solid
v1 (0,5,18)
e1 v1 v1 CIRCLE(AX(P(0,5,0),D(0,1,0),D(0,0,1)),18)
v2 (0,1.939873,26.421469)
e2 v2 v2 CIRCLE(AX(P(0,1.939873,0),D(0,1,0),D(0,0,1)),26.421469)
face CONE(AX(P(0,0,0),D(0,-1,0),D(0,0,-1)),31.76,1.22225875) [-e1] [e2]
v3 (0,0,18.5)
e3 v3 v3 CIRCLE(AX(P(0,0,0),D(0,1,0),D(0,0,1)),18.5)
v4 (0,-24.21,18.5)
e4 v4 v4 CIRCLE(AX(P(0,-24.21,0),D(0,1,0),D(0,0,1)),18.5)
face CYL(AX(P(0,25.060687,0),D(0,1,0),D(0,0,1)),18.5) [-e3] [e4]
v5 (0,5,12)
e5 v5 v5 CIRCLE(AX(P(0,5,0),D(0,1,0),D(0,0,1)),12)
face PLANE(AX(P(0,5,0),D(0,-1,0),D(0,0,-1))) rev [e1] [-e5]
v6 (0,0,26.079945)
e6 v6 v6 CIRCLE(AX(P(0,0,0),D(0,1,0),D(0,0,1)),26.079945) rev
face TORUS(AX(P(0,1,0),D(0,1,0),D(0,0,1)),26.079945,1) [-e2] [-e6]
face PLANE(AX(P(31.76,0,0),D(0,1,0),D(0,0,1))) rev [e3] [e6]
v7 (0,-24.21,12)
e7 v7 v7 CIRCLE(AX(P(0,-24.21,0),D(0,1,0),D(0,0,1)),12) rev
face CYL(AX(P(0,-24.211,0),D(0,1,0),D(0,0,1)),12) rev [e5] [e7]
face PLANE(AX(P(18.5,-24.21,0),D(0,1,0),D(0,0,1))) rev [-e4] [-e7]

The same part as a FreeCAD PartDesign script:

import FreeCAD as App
import Part
import Sketcher
from FreeCAD import Vector
Q = App.Units.Quantity


def edges_at(feature, points):
    """Names of the edges that pass closest to the given points."""
    edges = feature.Shape.Edges
    near = lambda p: min(range(len(edges)), key=lambda i: edges[i].distToShape(Part.Vertex(*p))[0])
    return sorted({f"Edge{near(p) + 1}" for p in points})


def add_polygon(sketch, points):
    """Adds a closed chain of lines whose ends are joined by coincident constraints."""
    first, n = sketch.GeometryCount, len(points)
    for a, b in zip(points, points[1:] + points[:1]):
        sketch.addGeometry(Part.LineSegment(App.Vector(*a, 0), App.Vector(*b, 0)), False)
    for i in range(n):
        sketch.addConstraint(Sketcher.Constraint("Coincident", first + i, 2, first + (i + 1) % n, 1))

doc = App.newDocument("Part")
params = doc.addObject("Spreadsheet::Sheet", "Params")
for row, (alias, value) in enumerate([
    ("sketch1_width", "18 mm"),
    ("sketch1_width2", "18.5 mm"),
    ("sketch1_width3", "13.26 mm"),
    ("sketch1_height", "29.21 mm"),
    ("revolution_angle", "360 deg"),
    ("sketch2_diameter", "24 mm"),
    ("fillet_radius", "1 mm"),
], start=1):
    params.set(f"A{row}", alias)
    params.set(f"B{row}", "=" + value)
    params.setAlias(f"B{row}", alias)

body = doc.addObject("PartDesign::Body", "Body")

sketch1 = body.newObject("Sketcher::SketchObject", "Sketch")
sketch1.AttachmentSupport = (doc.getObject("XY_Plane"), [""])
sketch1.MapMode = "FlatFace"
add_polygon(sketch1, [(18, 5), (0, 5), (0, -24), (18, -24), (18, 0), (32, 0)])
sketch1.addConstraint([
    Sketcher.Constraint("Horizontal", 0),
    Sketcher.Constraint("Vertical", 1),
    Sketcher.Constraint("Horizontal", 2),
    Sketcher.Constraint("Vertical", 3),
    Sketcher.Constraint("Horizontal", 4),
    Sketcher.Constraint("PointOnObject", 0, 2, -2),
    Sketcher.Constraint("PointOnObject", 3, 2, -1),
    Sketcher.Constraint("DistanceX", 0, 2, 0, 1, Q("18 mm")),
    Sketcher.Constraint("DistanceX", 2, 1, 2, 2, Q("18.5 mm")),
    Sketcher.Constraint("DistanceY", -1, 1, 0, 2, Q("5 mm")),
    Sketcher.Constraint("DistanceX", 4, 1, 4, 2, Q("13.26 mm")),
    Sketcher.Constraint("DistanceY", 1, 2, 1, 1, Q("29.21 mm")),
])
sketch1.setExpression("Constraints[13]", "Params.sketch1_width")
sketch1.setExpression("Constraints[14]", "Params.sketch1_width2")
sketch1.setExpression("Constraints[16]", "Params.sketch1_width3")
sketch1.setExpression("Constraints[17]", "Params.sketch1_height")
revolution = body.newObject("PartDesign::Revolution", "Revolution")
revolution.Profile = sketch1
revolution.ReferenceAxis = (sketch1, ["V_Axis"])
revolution.setExpression("Angle", "Params.revolution_angle")

sketch2 = body.newObject("Sketcher::SketchObject", "Sketch001")
sketch2.AttachmentSupport = (doc.getObject("XZ_Plane"), [""])
sketch2.MapMode = "FlatFace"
sketch2.AttachmentOffset = App.Placement(Vector(0, 0, -5), App.Rotation())
sketch2.addGeometry(Part.Circle(Vector(0, 0, 0), Vector(0, 0, 1), 12), False)
sketch2.addConstraint([
    Sketcher.Constraint("Coincident", 0, 3, -1, 1),
    Sketcher.Constraint("Diameter", 0, Q("24 mm")),
])
sketch2.setExpression("Constraints[1]", "Params.sketch2_diameter")
pocket1 = body.newObject("PartDesign::Pocket", "Pocket")
pocket1.Profile = sketch2
pocket1.Type = "UpToFirst"
pocket1.Reversed = True
doc.recompute()

fillet = body.newObject("PartDesign::Fillet", "Fillet")
fillet.Base = (pocket1, edges_at(pocket1, [(-31.76, 0, 0)]))
fillet.setExpression("Radius", "Params.fillet_radius")

doc.recompute()
